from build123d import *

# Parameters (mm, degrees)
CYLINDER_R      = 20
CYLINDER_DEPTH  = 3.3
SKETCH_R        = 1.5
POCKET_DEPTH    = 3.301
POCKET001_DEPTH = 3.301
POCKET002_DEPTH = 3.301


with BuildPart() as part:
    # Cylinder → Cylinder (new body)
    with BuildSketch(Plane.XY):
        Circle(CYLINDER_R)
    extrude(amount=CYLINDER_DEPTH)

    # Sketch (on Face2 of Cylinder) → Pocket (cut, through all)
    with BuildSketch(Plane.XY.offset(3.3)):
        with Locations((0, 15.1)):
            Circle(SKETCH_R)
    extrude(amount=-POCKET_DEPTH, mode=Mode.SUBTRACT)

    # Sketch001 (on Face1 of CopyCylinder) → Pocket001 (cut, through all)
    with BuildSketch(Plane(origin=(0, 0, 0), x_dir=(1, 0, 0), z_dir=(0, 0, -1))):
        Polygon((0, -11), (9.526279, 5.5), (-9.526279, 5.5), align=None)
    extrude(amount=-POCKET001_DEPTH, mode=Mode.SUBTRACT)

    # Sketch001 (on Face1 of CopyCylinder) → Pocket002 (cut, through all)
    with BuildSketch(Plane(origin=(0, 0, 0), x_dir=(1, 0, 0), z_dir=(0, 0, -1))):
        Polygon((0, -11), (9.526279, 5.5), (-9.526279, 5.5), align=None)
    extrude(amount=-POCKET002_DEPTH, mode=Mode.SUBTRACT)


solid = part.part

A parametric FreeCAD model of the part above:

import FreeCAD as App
import Part
import Sketcher
Q = App.Units.Quantity

doc = App.newDocument("Part")
body = doc.addObject("PartDesign::Body", "Body")

# Sketch on XY plane
sketch1 = body.newObject("Sketcher::SketchObject", "Sketch")
sketch1.AttachmentSupport = (doc.getObject("XY_Plane"), [""])
sketch1.MapMode = "FlatFace"
sketch1.addGeometry(Part.Circle(App.Vector(0, 0, 0), App.Vector(0, 0, 1), 20), False)
sketch1.addConstraint([
    Sketcher.Constraint("Coincident", 0, 3, -1, 1),
    Sketcher.Constraint("Diameter", 0, Q("40 mm")),
])
pad1 = body.newObject("PartDesign::Pad", "Pad")
pad1.Profile = sketch1
pad1.Length = 3.3

# Sketch on XY plane
sketch2 = body.newObject("Sketcher::SketchObject", "Sketch001")
sketch2.AttachmentSupport = (doc.getObject("XY_Plane"), [""])
sketch2.MapMode = "FlatFace"
sketch2.AttachmentOffset = App.Placement(App.Vector(0, 0, 3.3), App.Rotation())
sketch2.addGeometry(Part.Circle(App.Vector(0, 15.1, 0), App.Vector(0, 0, 1), 1.5), False)
sketch2.addConstraint([
    Sketcher.Constraint("PointOnObject", 0, 3, -2),
    Sketcher.Constraint("Diameter", 0, Q("3 mm")),
    Sketcher.Constraint("DistanceY", -1, 1, 0, 3, Q("15.1 mm")),
])
pocket1 = body.newObject("PartDesign::Pocket", "Pocket")
pocket1.Profile = sketch2
pocket1.Type = "ThroughAll"

# Sketch on XY plane
sketch3 = body.newObject("Sketcher::SketchObject", "Sketch002")
sketch3.AttachmentSupport = (doc.getObject("XY_Plane"), [""])
sketch3.MapMode = "FlatFace"
sketch3.addGeometry([
    Part.LineSegment(App.Vector(0, 11, 0), App.Vector(10, -6, 0)),
    Part.LineSegment(App.Vector(10, -6, 0), App.Vector(-10, -6, 0)),
    Part.LineSegment(App.Vector(-10, -6, 0), App.Vector(0, 11, 0)),
], False)
sketch3.addConstraint([
    Sketcher.Constraint("Coincident", 0, 2, 1, 1),
    Sketcher.Constraint("Coincident", 1, 2, 2, 1),
    Sketcher.Constraint("Coincident", 2, 2, 0, 1),
    Sketcher.Constraint("Horizontal", 1),
    Sketcher.Constraint("PointOnObject", 2, 2, -2),
    Sketcher.Constraint("Equal", 0, 2),
    Sketcher.Constraint("Angle", 0, Q("-60.000001 deg")),
    Sketcher.Constraint("DistanceY", -1, 1, 2, 2, Q("11 mm")),
    Sketcher.Constraint("DistanceY", 0, 2, -1, 1, Q("5.5 mm")),
])
pocket2 = body.newObject("PartDesign::Pocket", "Pocket001")
pocket2.Profile = sketch3
pocket2.Type = "ThroughAll"
pocket2.Reversed = True

# Sketch on XY plane
sketch4 = body.newObject("Sketcher::SketchObject", "Sketch003")
sketch4.AttachmentSupport = (doc.getObject("XY_Plane"), [""])
sketch4.MapMode = "FlatFace"
sketch4.addGeometry([
    Part.LineSegment(App.Vector(0, 11, 0), App.Vector(10, -6, 0)),
    Part.LineSegment(App.Vector(10, -6, 0), App.Vector(-10, -6, 0)),
    Part.LineSegment(App.Vector(-10, -6, 0), App.Vector(0, 11, 0)),
], False)
sketch4.addConstraint([
    Sketcher.Constraint("Coincident", 0, 2, 1, 1),
    Sketcher.Constraint("Coincident", 1, 2, 2, 1),
    Sketcher.Constraint("Coincident", 2, 2, 0, 1),
    Sketcher.Constraint("Horizontal", 1),
    Sketcher.Constraint("PointOnObject", 2, 2, -2),
    Sketcher.Constraint("Equal", 0, 2),
    Sketcher.Constraint("Angle", 0, Q("-60.000001 deg")),
    Sketcher.Constraint("DistanceY", -1, 1, 2, 2, Q("11 mm")),
    Sketcher.Constraint("DistanceY", 0, 2, -1, 1, Q("5.5 mm")),
])
pocket3 = body.newObject("PartDesign::Pocket", "Pocket002")
pocket3.Profile = sketch4
pocket3.Type = "ThroughAll"
pocket3.Reversed = True

doc.recompute()
